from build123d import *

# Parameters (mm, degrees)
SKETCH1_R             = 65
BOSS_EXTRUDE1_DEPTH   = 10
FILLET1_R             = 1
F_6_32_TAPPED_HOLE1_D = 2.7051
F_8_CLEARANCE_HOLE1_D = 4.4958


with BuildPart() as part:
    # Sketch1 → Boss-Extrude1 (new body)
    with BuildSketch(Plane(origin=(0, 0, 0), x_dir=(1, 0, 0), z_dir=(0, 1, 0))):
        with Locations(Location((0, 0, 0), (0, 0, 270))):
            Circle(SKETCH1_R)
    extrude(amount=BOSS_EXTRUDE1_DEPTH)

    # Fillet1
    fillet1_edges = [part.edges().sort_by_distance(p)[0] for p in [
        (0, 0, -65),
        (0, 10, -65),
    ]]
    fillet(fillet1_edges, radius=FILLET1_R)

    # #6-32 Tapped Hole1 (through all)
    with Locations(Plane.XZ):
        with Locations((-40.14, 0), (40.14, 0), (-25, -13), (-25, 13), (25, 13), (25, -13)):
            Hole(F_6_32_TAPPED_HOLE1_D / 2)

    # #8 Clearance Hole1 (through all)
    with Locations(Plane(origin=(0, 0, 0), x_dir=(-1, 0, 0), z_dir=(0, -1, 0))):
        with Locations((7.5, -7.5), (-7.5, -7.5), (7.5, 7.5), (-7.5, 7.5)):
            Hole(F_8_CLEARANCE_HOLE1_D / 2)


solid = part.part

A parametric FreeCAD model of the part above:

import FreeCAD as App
import Part
import Sketcher
from FreeCAD import Vector


def edges_at(feature, points):
    """Names of the edges that pass closest to the given points."""
    edges = feature.Shape.Edges
    near = lambda p: min(range(len(edges)), key=lambda i: edges[i].distToShape(Part.Vertex(*p))[0])
    return sorted({f"Edge{near(p) + 1}" for p in points})

doc = App.newDocument("Part")
params = doc.addObject("Spreadsheet::Sheet", "Params")
for row, (alias, value) in enumerate([
    ("sketch1_diameter", "130 mm"),
    ("pad1_length", "10 mm"),
    ("fillet_radius", "1 mm"),
    ("hole_diameter", "2.7051 mm"),
    ("hole2_diameter", "4.4958 mm"),
], start=1):
    params.set(f"A{row}", alias)
    params.set(f"B{row}", "=" + value)
    params.setAlias(f"B{row}", alias)

body = doc.addObject("PartDesign::Body", "Body")

# Sketch on XZ plane
sketch1 = doc.addObject("Sketcher::SketchObject", "Sketch")
body.addObject(sketch1)
sketch1.AttachmentSupport = (doc.XZ_Plane, [""])
sketch1.MapMode = "FlatFace"
sketch1.addGeometry(Part.Circle(Vector(0, 0, 0), Vector(0, 0, 1), 65), False)
sketch1.addConstraint(Sketcher.Constraint("Coincident", 0, 3, -1, 1))
sketch1.addConstraint(Sketcher.Constraint("Diameter", 0, 130.0))
sketch1.setExpression("Constraints[1]", "Params.sketch1_diameter")
pad1 = doc.addObject("PartDesign::Pad", "Pad")
body.addObject(pad1)
pad1.Profile = sketch1
pad1.setExpression("Length", "Params.pad1_length")
pad1.Reversed = True
doc.recompute()

fillet = doc.addObject("PartDesign::Fillet", "Fillet")
body.addObject(fillet)
fillet.Base = (pad1, edges_at(pad1, [(0, 0, -65), (0, 10, -65)]))
fillet.setExpression("Radius", "Params.fillet_radius")

# Sketch on XZ plane
sketch2 = doc.addObject("Sketcher::SketchObject", "Sketch001")
body.addObject(sketch2)
sketch2.AttachmentSupport = (doc.XZ_Plane, [""])
sketch2.MapMode = "FlatFace"
sketch2.addGeometry(Part.Circle(Vector(-40.14, 0, 0), Vector(0, 0, 1), 1.35255), False)
sketch2.addGeometry(Part.Circle(Vector(40.14, 0, 0), Vector(0, 0, 1), 1.35255), False)
sketch2.addGeometry(Part.Circle(Vector(-25, -13, 0), Vector(0, 0, 1), 1.35255), False)
sketch2.addGeometry(Part.Circle(Vector(-25, 13, 0), Vector(0, 0, 1), 1.35255), False)
sketch2.addGeometry(Part.Circle(Vector(25, 13, 0), Vector(0, 0, 1), 1.35255), False)
sketch2.addGeometry(Part.Circle(Vector(25, -13, 0), Vector(0, 0, 1), 1.35255), False)
sketch2.addConstraint(Sketcher.Constraint("Equal", 0, 1))
sketch2.addConstraint(Sketcher.Constraint("Equal", 1, 2))
sketch2.addConstraint(Sketcher.Constraint("Equal", 2, 3))
sketch2.addConstraint(Sketcher.Constraint("Equal", 3, 4))
sketch2.addConstraint(Sketcher.Constraint("Equal", 4, 5))
sketch2.addConstraint(Sketcher.Constraint("Symmetric", 0, 3, 1, 3, -1, 1))
sketch2.addConstraint(Sketcher.Constraint("Symmetric", 2, 3, 4, 3, -1, 1))
sketch2.addConstraint(Sketcher.Constraint("Symmetric", 3, 3, 5, 3, -1, 1))
sketch2.addConstraint(Sketcher.Constraint("Symmetric", 3, 3, 4, 3, -2))
sketch2.addConstraint(Sketcher.Constraint("PointOnObject", 0, 3, -1))
sketch2.addConstraint(Sketcher.Constraint("DistanceX", 2, 3, -1, 1, 25.0))
sketch2.addConstraint(Sketcher.Constraint("DistanceY", 2, 3, -1, 1, 13.0))
sketch2.addConstraint(Sketcher.Constraint("Diameter", 0, 2.7051))
sketch2.addConstraint(Sketcher.Constraint("DistanceX", 0, 3, -1, 1, 40.14))
doc.recompute()
hole = doc.addObject("PartDesign::Hole", "Hole")
body.addObject(hole)
hole.Profile = sketch2
hole.ThreadType = "None"
hole.setExpression("Diameter", "Params.hole_diameter")
hole.DepthType = "ThroughAll"

# Sketch on XZ plane
sketch3 = doc.addObject("Sketcher::SketchObject", "Sketch002")
body.addObject(sketch3)
sketch3.AttachmentSupport = (doc.XZ_Plane, [""])
sketch3.MapMode = "FlatFace"
sketch3.addGeometry(Part.Circle(Vector(-7.5, 7.5, 0), Vector(0, 0, 1), 2.2479), False)
sketch3.addGeometry(Part.Circle(Vector(7.5, 7.5, 0), Vector(0, 0, 1), 2.2479), False)
sketch3.addGeometry(Part.Circle(Vector(-7.5, -7.5, 0), Vector(0, 0, 1), 2.2479), False)
sketch3.addGeometry(Part.Circle(Vector(7.5, -7.5, 0), Vector(0, 0, 1), 2.2479), False)
sketch3.addConstraint(Sketcher.Constraint("Equal", 0, 1))
sketch3.addConstraint(Sketcher.Constraint("Equal", 1, 2))
sketch3.addConstraint(Sketcher.Constraint("Equal", 2, 3))
sketch3.addConstraint(Sketcher.Constraint("Symmetric", 1, 3, 2, 3, -1, 1))
sketch3.addConstraint(Sketcher.Constraint("Symmetric", 0, 3, 3, 3, -1, 1))
sketch3.addConstraint(Sketcher.Constraint("Symmetric", 0, 3, 1, 3, -2))
sketch3.addConstraint(Sketcher.Constraint("DistanceX", 0, 3, 1, 3, 15.0))
sketch3.addConstraint(Sketcher.Constraint("DistanceY", 2, 3, 0, 3, 15.0))
sketch3.addConstraint(Sketcher.Constraint("Diameter", 0, 4.4958))
doc.recompute()
hole2 = doc.addObject("PartDesign::Hole", "Hole001")
body.addObject(hole2)
hole2.Profile = sketch3
hole2.ThreadType = "None"
hole2.setExpression("Diameter", "Params.hole2_diameter")
hole2.DepthType = "ThroughAll"

doc.recompute()
